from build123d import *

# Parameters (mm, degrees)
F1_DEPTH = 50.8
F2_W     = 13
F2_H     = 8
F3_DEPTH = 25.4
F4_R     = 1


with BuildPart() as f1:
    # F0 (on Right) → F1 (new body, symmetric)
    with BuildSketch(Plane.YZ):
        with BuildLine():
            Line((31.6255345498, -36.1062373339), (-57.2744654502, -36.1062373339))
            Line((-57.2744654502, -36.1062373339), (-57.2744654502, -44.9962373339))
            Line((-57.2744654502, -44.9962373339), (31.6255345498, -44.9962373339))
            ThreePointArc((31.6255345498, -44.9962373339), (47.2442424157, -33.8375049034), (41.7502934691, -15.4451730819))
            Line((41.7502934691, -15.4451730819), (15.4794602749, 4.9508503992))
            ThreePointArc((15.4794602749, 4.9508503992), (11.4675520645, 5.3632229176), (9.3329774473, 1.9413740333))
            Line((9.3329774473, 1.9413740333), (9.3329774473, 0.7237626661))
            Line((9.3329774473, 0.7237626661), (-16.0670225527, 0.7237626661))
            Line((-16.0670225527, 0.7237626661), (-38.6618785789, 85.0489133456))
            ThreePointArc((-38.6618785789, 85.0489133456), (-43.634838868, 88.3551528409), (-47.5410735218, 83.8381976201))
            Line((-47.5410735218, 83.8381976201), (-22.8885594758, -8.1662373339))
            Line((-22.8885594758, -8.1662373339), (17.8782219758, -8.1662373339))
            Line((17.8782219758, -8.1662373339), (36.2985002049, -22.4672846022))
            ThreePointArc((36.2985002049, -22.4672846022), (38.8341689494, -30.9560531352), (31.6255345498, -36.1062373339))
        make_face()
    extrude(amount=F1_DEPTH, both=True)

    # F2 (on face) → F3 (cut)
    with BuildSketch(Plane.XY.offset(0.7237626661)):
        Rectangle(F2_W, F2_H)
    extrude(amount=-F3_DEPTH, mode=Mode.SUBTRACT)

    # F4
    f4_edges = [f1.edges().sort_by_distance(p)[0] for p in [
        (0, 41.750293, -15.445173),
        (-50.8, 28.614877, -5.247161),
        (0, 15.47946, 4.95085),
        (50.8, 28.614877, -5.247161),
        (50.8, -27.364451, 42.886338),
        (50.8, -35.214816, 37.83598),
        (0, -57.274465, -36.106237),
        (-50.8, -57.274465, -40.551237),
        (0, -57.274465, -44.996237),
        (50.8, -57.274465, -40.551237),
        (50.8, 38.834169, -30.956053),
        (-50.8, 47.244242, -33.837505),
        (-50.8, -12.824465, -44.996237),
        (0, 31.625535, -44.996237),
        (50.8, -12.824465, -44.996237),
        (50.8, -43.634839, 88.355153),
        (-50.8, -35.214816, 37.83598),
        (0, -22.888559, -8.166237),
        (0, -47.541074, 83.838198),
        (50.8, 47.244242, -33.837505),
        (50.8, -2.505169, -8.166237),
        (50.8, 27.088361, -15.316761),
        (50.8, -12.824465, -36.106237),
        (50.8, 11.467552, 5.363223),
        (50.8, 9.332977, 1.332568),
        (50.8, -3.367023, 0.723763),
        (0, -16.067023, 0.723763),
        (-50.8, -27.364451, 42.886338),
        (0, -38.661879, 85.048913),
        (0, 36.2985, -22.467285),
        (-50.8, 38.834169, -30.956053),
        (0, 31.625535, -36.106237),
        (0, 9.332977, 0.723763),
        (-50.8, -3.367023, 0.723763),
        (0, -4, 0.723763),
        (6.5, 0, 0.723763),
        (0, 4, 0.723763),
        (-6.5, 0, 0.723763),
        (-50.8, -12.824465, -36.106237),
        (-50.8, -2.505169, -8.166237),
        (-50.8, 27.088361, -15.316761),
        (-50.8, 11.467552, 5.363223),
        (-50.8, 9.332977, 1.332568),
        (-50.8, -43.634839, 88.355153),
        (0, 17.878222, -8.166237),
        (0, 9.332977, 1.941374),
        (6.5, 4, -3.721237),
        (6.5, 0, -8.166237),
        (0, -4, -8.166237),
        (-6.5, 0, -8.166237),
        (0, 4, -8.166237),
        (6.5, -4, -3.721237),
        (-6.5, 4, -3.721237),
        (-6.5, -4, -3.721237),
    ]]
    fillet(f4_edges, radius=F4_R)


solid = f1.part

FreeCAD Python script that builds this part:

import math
import FreeCAD as App
import Part
import Sketcher
from FreeCAD import Vector
Q = App.Units.Quantity

doc = App.newDocument("Part")
body = doc.addObject("PartDesign::Body", "Body")

# Sketch on YZ plane
sketch1 = doc.addObject("Sketcher::SketchObject", "Sketch")
body.addObject(sketch1)
sketch1.AttachmentSupport = (doc.YZ_Plane, [""])
sketch1.MapMode = "FlatFace"
sketch1.addGeometry([
    Part.LineSegment(Vector(31.625535, -36.106237, 0), Vector(-57.274465, -36.106237, 0)),  # 0
    Part.LineSegment(Vector(-57.274465, -36.106237, 0), Vector(-57.274465, -44.996237, 0)),  # 1
    Part.LineSegment(Vector(-57.274465, -44.996237, 0), Vector(31.625535, -44.996237, 0)),  # 2
    Part.ArcOfCircle(Part.Circle(Vector(31.625535, -28.486237, 0), Vector(0, 0, 1), 16.51), math.radians(-90), math.radians(52.175122)),  # 3
    Part.LineSegment(Vector(41.750293, -15.445173, 0), Vector(15.47946, 4.95085, 0)),  # 4
    Part.ArcOfCircle(Part.Circle(Vector(13.142977, 1.941374, 0), Vector(0, 0, 1), 3.81), math.radians(52.175122), math.radians(180)),  # 5
    Part.LineSegment(Vector(9.332977, 1.941374, 0), Vector(9.332977, 0.723763, 0)),  # 6
    Part.LineSegment(Vector(9.332977, 0.723763, 0), Vector(-16.067023, 0.723763, 0)),  # 7
    Part.LineSegment(Vector(-16.067023, 0.723763, 0), Vector(-38.661879, 85.048913, 0)),  # 8
    Part.ArcOfCircle(Part.Circle(Vector(-43.024622, 83.87992, 0), Vector(0, 0, 1), 4.516644), math.radians(15), math.radians(180.529273)),  # 9
    Part.LineSegment(Vector(-47.541074, 83.838198, 0), Vector(-22.888559, -8.166237, 0)),  # 10
    Part.LineSegment(Vector(-22.888559, -8.166237, 0), Vector(17.878222, -8.166237, 0)),  # 11
    Part.LineSegment(Vector(17.878222, -8.166237, 0), Vector(36.2985, -22.467285, 0)),  # 12
    Part.ArcOfCircle(Part.Circle(Vector(31.625535, -28.486237, 0), Vector(0, 0, 1), 7.62), math.radians(-90), math.radians(52.175122)),  # 13
], False)
sketch1.addConstraint([
    Sketcher.Constraint("Coincident", 0, 2, 1, 1),
    Sketcher.Constraint("Coincident", 1, 2, 2, 1),
    Sketcher.Constraint("Tangent", 2, 2, 3, 1),
    Sketcher.Constraint("Tangent", 3, 2, 4, 1),
    Sketcher.Constraint("Tangent", 4, 2, 5, 1),
    Sketcher.Constraint("Tangent", 5, 2, 6, 1),
    Sketcher.Constraint("Coincident", 6, 2, 7, 1),
    Sketcher.Constraint("Coincident", 7, 2, 8, 1),
    Sketcher.Constraint("Tangent", 8, 2, 9, 1),
    Sketcher.Constraint("Coincident", 9, 2, 10, 1),
    Sketcher.Constraint("Coincident", 10, 2, 11, 1),
    Sketcher.Constraint("Coincident", 11, 2, 12, 1),
    Sketcher.Constraint("Tangent", 12, 2, 13, 2),
    Sketcher.Constraint("Tangent", 13, 1, 0, 1),
    Sketcher.Constraint("Horizontal", 0),
    Sketcher.Constraint("Vertical", 1),
    Sketcher.Constraint("Horizontal", 2),
    Sketcher.Constraint("Vertical", 6),
    Sketcher.Constraint("Horizontal", 7),
    Sketcher.Constraint("Horizontal", 11),
    Sketcher.Constraint("Coincident", 13, 3, 3, 3),
    Sketcher.Constraint("Parallel", 8, 10),
    Sketcher.Constraint("Parallel", 4, 12),
    Sketcher.Constraint("Radius", 13, Q("0.3 in")),
    Sketcher.Constraint("DistanceX", 7, 2, 7, 1, Q("1 in")),
    Sketcher.Constraint("Radius", 3, Q("0.65 in")),
    Sketcher.Constraint("Radius", 5, Q("0.15 in")),
    Sketcher.Constraint("DistanceX", 0, 2, 0, 1, Q("3.5 in")),
    Sketcher.Constraint("Angle", 8, Q("105 deg")),
    Sketcher.Constraint("DistanceY", 3, 3, 11, 2, Q("0.8 in")),
    Sketcher.Constraint("Distance", 10, Q("3.75 in")),
    Sketcher.Constraint("DistanceY", 3, 3, 6, 2, Q("1.15 in")),
    Sketcher.Constraint("Radius", 9, 4.516644),
    Sketcher.Constraint("Distance", 4, 33.2589),
    Sketcher.Constraint("DistanceX", 11, 1, 11, 2, 40.766781),
    Sketcher.Constraint("DistanceY", 6, 2, 6, 1, 1.217611),
    Sketcher.Constraint("DistanceX", -1, 1, 12, 2, 36.2985),
    Sketcher.Constraint("DistanceY", -1, 1, 9, 3, 83.87992),
])
pad1 = doc.addObject("PartDesign::Pad", "Pad")
body.addObject(pad1)
pad1.Profile = sketch1
pad1.Length = Q("4 in")
pad1.Midplane = True

# Sketch on XY plane
sketch2 = doc.addObject("Sketcher::SketchObject", "Sketch001")
body.addObject(sketch2)
sketch2.AttachmentSupport = (doc.XY_Plane, [""])
sketch2.MapMode = "FlatFace"
sketch2.AttachmentOffset = App.Placement(Vector(0, 0, 0.723763), App.Rotation())
sketch2.addGeometry([
    Part.LineSegment(Vector(-6.5, 4, 0), Vector(-6.5, -4, 0)),
    Part.LineSegment(Vector(-6.5, -4, 0), Vector(6.5, -4, 0)),
    Part.LineSegment(Vector(6.5, -4, 0), Vector(6.5, 4, 0)),
    Part.LineSegment(Vector(6.5, 4, 0), Vector(-6.5, 4, 0)),
], False)
sketch2.addConstraint([
    Sketcher.Constraint("Coincident", 0, 2, 1, 1),
    Sketcher.Constraint("Coincident", 1, 2, 2, 1),
    Sketcher.Constraint("Coincident", 2, 2, 3, 1),
    Sketcher.Constraint("Coincident", 3, 2, 0, 1),
    Sketcher.Constraint("Vertical", 0),
    Sketcher.Constraint("Horizontal", 1),
    Sketcher.Constraint("Vertical", 2),
    Sketcher.Constraint("Horizontal", 3),
    Sketcher.Constraint("Symmetric", 0, 2, 2, 2, -1, 1),
    Sketcher.Constraint("DistanceX", 1, 1, 1, 2, 13.0),
    Sketcher.Constraint("DistanceY", 0, 2, 0, 1, 8.0),
])
pocket1 = doc.addObject("PartDesign::Pocket", "Pocket")
body.addObject(pocket1)
pocket1.Profile = sketch2
pocket1.Length = Q("1 in")
doc.recompute()

fillet = doc.addObject("PartDesign::Fillet", "Fillet")
body.addObject(fillet)
fillet.Base = (pocket1, ["Edge1"])
fillet.UseAllEdges = True
fillet.Radius = 1

doc.recompute()
